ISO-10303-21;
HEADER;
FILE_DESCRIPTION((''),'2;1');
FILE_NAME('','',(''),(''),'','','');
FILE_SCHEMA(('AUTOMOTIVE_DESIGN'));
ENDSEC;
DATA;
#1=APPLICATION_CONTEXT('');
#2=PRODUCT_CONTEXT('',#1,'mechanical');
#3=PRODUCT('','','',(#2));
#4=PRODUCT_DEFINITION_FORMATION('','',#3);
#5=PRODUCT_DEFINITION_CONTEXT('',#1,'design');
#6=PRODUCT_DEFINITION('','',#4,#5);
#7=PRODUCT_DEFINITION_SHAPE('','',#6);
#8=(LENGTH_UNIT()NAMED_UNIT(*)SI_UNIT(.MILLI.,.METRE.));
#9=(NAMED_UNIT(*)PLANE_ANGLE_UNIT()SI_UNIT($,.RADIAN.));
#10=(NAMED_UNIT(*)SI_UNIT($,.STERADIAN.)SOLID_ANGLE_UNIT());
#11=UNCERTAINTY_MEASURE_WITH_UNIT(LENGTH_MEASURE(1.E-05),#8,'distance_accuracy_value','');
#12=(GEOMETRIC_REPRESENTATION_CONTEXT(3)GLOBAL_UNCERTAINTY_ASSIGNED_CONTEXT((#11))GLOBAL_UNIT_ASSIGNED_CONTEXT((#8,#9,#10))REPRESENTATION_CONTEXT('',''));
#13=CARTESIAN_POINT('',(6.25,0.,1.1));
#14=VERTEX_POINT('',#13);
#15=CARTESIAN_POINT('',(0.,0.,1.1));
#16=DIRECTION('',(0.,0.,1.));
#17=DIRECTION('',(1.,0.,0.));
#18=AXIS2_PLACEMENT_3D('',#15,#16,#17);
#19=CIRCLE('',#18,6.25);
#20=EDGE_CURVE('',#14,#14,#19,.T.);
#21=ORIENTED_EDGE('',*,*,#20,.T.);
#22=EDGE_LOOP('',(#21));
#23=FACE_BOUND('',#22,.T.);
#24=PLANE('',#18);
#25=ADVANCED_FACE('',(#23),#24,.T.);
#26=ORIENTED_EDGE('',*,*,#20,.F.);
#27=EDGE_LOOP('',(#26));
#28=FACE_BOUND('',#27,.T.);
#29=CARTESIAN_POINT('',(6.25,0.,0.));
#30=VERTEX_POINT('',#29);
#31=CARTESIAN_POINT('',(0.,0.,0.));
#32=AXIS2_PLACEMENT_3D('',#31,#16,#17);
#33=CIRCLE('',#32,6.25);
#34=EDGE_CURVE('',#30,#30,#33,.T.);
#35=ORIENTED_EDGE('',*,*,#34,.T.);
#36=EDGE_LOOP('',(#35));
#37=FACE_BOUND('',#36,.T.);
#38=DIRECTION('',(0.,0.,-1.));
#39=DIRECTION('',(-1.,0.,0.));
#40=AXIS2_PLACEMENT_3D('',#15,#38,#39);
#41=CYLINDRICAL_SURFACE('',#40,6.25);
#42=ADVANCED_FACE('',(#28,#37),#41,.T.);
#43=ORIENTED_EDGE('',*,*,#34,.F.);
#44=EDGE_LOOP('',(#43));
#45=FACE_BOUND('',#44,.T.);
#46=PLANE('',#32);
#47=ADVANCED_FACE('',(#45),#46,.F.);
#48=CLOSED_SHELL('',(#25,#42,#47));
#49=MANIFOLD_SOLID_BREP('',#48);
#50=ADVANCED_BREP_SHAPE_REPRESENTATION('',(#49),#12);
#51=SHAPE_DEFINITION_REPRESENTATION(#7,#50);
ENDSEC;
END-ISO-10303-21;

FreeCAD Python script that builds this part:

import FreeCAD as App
import Part
import Sketcher
from FreeCAD import Vector
Q = App.Units.Quantity

doc = App.newDocument("Part")
params = doc.addObject("Spreadsheet::Sheet", "Params")
for row, (alias, value) in enumerate([
    ("sketch1_diameter", "12.5 mm"),
    ("pad1_length", "1.1 mm"),
], start=1):
    params.set(f"A{row}", alias)
    params.set(f"B{row}", "=" + value)
    params.setAlias(f"B{row}", alias)

body = doc.addObject("PartDesign::Body", "Body")

# Sketch on XY plane
sketch1 = body.newObject("Sketcher::SketchObject", "Sketch")
sketch1.AttachmentSupport = (doc.getObject("XY_Plane"), [""])
sketch1.MapMode = "FlatFace"
sketch1.addGeometry(Part.Circle(Vector(0, 0, 0), Vector(0, 0, 1), 6), False)
sketch1.addConstraint(Sketcher.Constraint("Coincident", 0, 3, -1, 1))
sketch1.addConstraint(Sketcher.Constraint("Diameter", 0, Q("12.5 mm")))
sketch1.setExpression("Constraints[1]", "Params.sketch1_diameter")
pad1 = body.newObject("PartDesign::Pad", "Pad")
pad1.Profile = sketch1
pad1.setExpression("Length", "Params.pad1_length")

doc.recompute()
